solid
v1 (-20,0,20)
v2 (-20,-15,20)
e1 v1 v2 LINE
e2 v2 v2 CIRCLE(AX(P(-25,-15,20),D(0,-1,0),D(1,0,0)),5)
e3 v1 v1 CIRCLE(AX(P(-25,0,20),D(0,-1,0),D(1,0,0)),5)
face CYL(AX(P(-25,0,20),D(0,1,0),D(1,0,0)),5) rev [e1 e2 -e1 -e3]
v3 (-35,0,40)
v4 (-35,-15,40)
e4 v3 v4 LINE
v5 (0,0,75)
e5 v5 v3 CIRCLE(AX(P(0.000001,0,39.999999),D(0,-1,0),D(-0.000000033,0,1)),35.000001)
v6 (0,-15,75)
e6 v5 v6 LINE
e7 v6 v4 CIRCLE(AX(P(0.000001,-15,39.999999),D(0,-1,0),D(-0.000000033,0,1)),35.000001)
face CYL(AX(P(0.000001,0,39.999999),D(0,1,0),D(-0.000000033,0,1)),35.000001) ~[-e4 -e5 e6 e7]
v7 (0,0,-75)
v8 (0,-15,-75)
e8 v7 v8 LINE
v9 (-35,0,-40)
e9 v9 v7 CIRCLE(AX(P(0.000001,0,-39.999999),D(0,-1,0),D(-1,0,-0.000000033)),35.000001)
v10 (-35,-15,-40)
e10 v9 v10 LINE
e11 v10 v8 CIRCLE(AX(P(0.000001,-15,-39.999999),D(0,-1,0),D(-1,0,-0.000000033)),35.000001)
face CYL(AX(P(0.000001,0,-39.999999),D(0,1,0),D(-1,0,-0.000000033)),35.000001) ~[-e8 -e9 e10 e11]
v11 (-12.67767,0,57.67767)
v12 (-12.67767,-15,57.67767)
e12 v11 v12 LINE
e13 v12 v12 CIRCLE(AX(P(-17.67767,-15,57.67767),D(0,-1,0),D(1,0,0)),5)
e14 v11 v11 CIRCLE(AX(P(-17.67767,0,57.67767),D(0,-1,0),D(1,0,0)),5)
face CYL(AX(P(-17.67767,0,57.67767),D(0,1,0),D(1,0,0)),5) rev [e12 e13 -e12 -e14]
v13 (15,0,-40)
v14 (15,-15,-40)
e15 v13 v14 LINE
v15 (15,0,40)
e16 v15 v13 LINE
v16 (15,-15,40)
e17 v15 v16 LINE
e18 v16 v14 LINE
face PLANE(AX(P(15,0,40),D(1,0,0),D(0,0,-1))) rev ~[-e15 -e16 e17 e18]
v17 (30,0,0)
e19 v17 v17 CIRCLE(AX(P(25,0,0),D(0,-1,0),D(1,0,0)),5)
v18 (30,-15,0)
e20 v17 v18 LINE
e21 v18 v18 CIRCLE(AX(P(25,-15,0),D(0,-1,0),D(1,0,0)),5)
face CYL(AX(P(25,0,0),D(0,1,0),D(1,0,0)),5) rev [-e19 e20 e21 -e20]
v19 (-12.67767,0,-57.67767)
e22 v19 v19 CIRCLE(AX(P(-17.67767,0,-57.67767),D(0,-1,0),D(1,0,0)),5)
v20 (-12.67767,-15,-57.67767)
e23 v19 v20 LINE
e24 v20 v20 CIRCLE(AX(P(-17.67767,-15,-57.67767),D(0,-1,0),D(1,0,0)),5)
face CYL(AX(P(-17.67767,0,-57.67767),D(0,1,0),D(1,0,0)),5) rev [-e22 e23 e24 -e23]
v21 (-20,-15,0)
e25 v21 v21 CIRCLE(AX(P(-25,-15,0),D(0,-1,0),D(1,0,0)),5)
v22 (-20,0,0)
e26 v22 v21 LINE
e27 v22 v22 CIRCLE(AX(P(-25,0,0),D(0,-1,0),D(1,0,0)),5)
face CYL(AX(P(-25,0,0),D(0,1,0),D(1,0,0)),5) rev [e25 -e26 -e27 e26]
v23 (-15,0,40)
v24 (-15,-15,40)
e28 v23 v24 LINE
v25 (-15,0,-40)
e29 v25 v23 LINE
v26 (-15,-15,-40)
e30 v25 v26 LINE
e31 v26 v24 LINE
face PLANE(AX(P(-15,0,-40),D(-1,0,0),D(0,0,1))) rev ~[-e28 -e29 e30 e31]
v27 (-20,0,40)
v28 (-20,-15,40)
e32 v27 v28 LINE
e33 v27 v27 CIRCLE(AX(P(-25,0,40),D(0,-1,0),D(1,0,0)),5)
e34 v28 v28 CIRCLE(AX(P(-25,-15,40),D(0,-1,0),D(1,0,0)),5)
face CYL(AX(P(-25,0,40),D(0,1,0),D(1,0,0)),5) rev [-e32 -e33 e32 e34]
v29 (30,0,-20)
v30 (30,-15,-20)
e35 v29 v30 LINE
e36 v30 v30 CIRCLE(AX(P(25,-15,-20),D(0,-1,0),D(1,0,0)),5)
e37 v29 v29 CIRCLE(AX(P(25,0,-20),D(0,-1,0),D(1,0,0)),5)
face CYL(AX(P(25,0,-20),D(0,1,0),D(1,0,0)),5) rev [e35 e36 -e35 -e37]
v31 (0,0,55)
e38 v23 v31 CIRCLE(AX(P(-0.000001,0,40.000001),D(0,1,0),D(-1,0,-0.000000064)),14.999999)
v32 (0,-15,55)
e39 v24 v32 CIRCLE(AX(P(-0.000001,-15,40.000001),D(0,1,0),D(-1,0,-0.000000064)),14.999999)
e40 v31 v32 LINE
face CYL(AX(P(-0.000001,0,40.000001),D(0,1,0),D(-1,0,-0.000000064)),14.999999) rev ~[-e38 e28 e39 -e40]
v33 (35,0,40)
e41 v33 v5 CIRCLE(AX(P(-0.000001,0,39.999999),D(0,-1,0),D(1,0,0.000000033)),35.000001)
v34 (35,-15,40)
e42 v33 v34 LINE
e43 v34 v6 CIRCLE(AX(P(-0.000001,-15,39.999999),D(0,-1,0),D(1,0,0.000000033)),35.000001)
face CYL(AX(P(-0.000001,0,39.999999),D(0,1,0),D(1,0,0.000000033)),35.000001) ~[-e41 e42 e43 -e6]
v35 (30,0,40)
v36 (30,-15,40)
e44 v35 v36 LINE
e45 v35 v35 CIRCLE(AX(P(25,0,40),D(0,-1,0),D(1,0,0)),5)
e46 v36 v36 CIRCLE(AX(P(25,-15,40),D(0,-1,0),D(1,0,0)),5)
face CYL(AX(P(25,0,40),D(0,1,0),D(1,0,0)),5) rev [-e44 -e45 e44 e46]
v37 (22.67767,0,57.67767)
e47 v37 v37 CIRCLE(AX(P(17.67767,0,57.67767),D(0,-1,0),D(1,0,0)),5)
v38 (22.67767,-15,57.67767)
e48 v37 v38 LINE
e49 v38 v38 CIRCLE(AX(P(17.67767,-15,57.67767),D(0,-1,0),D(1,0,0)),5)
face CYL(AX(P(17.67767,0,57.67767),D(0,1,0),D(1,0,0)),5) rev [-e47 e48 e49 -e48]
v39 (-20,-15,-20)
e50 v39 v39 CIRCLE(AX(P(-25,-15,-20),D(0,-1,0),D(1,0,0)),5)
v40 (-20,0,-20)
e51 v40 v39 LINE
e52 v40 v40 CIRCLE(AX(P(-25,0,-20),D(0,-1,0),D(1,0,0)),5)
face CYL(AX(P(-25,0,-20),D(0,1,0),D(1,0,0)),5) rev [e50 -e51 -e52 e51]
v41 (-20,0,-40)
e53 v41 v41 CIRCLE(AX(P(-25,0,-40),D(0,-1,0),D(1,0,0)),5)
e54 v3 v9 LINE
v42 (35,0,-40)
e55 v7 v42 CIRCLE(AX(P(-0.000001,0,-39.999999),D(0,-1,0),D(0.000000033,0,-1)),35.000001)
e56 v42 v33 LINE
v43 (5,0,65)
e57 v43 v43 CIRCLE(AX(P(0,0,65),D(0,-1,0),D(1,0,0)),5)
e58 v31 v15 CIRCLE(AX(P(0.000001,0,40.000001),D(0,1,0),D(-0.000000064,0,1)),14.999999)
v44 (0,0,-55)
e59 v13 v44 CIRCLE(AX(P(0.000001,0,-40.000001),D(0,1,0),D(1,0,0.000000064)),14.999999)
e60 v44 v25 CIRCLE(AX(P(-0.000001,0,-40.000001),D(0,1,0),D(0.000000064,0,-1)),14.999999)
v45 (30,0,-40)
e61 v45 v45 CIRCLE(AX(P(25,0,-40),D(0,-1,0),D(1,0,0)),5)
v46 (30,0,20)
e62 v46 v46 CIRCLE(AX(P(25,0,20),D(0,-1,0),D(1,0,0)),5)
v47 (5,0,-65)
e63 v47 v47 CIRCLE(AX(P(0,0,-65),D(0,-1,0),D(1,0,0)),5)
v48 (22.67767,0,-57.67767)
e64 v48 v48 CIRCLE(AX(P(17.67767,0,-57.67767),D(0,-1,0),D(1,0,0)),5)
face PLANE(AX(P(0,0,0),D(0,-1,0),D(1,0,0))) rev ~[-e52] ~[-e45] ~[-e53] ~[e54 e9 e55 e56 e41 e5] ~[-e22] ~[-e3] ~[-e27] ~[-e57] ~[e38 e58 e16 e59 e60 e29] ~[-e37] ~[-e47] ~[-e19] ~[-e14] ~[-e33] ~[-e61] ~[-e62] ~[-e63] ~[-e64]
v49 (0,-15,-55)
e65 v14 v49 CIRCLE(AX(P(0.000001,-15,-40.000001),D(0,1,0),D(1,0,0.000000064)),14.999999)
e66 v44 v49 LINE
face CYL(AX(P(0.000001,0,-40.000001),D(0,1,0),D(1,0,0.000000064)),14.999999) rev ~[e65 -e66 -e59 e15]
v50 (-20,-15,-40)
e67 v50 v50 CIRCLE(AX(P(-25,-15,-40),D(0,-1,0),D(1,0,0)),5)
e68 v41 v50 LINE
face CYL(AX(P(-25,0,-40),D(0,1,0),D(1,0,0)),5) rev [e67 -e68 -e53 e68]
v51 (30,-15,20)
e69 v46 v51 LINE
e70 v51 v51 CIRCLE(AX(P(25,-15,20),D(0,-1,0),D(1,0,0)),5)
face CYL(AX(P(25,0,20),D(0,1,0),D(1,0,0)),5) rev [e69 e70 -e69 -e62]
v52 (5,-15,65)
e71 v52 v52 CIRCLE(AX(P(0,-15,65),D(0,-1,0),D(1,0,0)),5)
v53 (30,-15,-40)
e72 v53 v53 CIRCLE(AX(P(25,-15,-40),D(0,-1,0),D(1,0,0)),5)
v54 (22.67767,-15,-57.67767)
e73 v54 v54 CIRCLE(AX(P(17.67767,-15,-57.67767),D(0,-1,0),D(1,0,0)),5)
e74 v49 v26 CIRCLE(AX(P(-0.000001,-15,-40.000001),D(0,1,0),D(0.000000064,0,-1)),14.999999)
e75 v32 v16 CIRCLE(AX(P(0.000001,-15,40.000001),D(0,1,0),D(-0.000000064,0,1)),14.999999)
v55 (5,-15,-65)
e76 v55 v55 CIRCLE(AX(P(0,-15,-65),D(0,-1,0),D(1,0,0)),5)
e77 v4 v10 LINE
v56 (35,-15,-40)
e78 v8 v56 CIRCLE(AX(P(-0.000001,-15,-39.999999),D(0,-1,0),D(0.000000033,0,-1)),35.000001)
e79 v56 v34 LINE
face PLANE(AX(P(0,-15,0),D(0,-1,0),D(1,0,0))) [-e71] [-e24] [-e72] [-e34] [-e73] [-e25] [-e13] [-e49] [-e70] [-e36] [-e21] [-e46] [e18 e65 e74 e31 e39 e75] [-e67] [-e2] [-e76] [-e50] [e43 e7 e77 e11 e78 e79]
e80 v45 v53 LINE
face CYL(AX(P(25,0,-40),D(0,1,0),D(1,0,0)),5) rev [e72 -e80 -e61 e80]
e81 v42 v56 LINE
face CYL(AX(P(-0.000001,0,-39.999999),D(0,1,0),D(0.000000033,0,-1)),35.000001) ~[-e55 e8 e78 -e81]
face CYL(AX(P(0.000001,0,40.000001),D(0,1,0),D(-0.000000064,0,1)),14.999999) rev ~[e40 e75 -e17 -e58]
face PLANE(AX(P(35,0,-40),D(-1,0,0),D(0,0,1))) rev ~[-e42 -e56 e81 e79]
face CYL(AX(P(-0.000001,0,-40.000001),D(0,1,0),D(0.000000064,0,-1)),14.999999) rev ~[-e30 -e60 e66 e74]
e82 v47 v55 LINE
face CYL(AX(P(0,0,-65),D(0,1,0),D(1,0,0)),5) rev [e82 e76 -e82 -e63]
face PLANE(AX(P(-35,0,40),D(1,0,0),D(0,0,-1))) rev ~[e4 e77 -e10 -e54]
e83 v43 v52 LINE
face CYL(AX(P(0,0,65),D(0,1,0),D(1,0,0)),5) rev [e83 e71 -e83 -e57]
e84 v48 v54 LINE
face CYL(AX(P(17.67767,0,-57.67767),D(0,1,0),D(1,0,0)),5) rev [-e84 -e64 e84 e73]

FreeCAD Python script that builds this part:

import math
import FreeCAD as App
import Part
import Sketcher
from FreeCAD import Vector
Q = App.Units.Quantity

doc = App.newDocument("Part")
params = doc.addObject("Spreadsheet::Sheet", "Params")
for row, (alias, value) in enumerate([
    ("sketch1_diameter", "10 mm"),
    ("sketch1_radius", "35.000001 mm"),
    ("sketch1_radius2", "14.999999 mm"),
    ("sketch1_height", "80 mm"),
    ("pad1_length", "15 mm"),
], start=1):
    params.set(f"A{row}", alias)
    params.set(f"B{row}", "=" + value)
    params.setAlias(f"B{row}", alias)

body = doc.addObject("PartDesign::Body", "Body")

sketch1 = body.newObject("Sketcher::SketchObject", "Sketch")
sketch1.AttachmentSupport = (doc.getObject("XZ_Plane"), [""])
sketch1.MapMode = "FlatFace"
sketch1.addGeometry(Part.ArcOfCircle(Part.Circle(Vector(0.000001, 39.999999, 0), Vector(0, 0, 1), 35.000001), math.radians(90.000002), math.radians(179.999998)), False)
sketch1.addGeometry(Part.LineSegment(Vector(-35, 40, 0), Vector(-35, -40, 0)), False)
sketch1.addGeometry(Part.ArcOfCircle(Part.Circle(Vector(0.000001, -39.999999, 0), Vector(0, 0, 1), 35.000001), math.radians(-179.999998), math.radians(-90.000002)), False)
sketch1.addGeometry(Part.ArcOfCircle(Part.Circle(Vector(-0.000001, -39.999999, 0), Vector(0, 0, 1), 35.000001), math.radians(-89.999998), math.radians(-0.000002)), False)
sketch1.addGeometry(Part.LineSegment(Vector(35, -40, 0), Vector(35, 40, 0)), False)
sketch1.addGeometry(Part.ArcOfCircle(Part.Circle(Vector(-0.000001, 39.999999, 0), Vector(0, 0, 1), 35.000001), math.radians(0.000002), math.radians(89.999998)), False)
sketch1.addGeometry(Part.Circle(Vector(-17.67767, -57.67767, 0), Vector(0, 0, 1), 5), False)
sketch1.addGeometry(Part.Circle(Vector(-25, -40, 0), Vector(0, 0, 1), 5), False)
sketch1.addGeometry(Part.Circle(Vector(-25, -20, 0), Vector(0, 0, 1), 5), False)
sketch1.addGeometry(Part.Circle(Vector(0, -65, 0), Vector(0, 0, 1), 5), False)
sketch1.addGeometry(Part.Circle(Vector(17.67767, -57.67767, 0), Vector(0, 0, 1), 5), False)
sketch1.addGeometry(Part.Circle(Vector(25, -40, 0), Vector(0, 0, 1), 5), False)
sketch1.addGeometry(Part.Circle(Vector(25, -20, 0), Vector(0, 0, 1), 5), False)
sketch1.addGeometry(Part.Circle(Vector(-25, 0, 0), Vector(0, 0, 1), 5), False)
sketch1.addGeometry(Part.Circle(Vector(-25, 20, 0), Vector(0, 0, 1), 5), False)
sketch1.addGeometry(Part.Circle(Vector(-25, 40, 0), Vector(0, 0, 1), 5), False)
sketch1.addGeometry(Part.Circle(Vector(-17.67767, 57.67767, 0), Vector(0, 0, 1), 5), False)
sketch1.addGeometry(Part.LineSegment(Vector(-15, -40, 0), Vector(-15, 40, 0)), False)
sketch1.addGeometry(Part.ArcOfCircle(Part.Circle(Vector(-0.000001, 40.000001, 0), Vector(0, 0, 1), 14.999999), math.radians(89.999996), math.radians(180.000004)), False)
sketch1.addGeometry(Part.ArcOfCircle(Part.Circle(Vector(0.000001, 40.000001, 0), Vector(0, 0, 1), 14.999999), math.radians(-0.000004), math.radians(90.000004)), False)
sketch1.addGeometry(Part.LineSegment(Vector(15, 40, 0), Vector(15, -40, 0)), False)
sketch1.addGeometry(Part.ArcOfCircle(Part.Circle(Vector(0.000001, -40.000001, 0), Vector(0, 0, 1), 14.999999), math.radians(-90.000004), math.radians(0.000004)), False)
sketch1.addGeometry(Part.ArcOfCircle(Part.Circle(Vector(-0.000001, -40.000001, 0), Vector(0, 0, 1), 14.999999), math.radians(179.999996), math.radians(270.000004)), False)
sketch1.addGeometry(Part.Circle(Vector(25, 0, 0), Vector(0, 0, 1), 5), False)
sketch1.addGeometry(Part.Circle(Vector(25, 20, 0), Vector(0, 0, 1), 5), False)
sketch1.addGeometry(Part.Circle(Vector(0, 65, 0), Vector(0, 0, 1), 5), False)
sketch1.addGeometry(Part.Circle(Vector(25, 40, 0), Vector(0, 0, 1), 5), False)
sketch1.addGeometry(Part.Circle(Vector(17.67767, 57.67767, 0), Vector(0, 0, 1), 5), False)
sketch1.addConstraint(Sketcher.Constraint("Tangent", 0, 2, 1, 1))
sketch1.addConstraint(Sketcher.Constraint("Tangent", 1, 2, 2, 1))
sketch1.addConstraint(Sketcher.Constraint("Tangent", 2, 2, 3, 1))
sketch1.addConstraint(Sketcher.Constraint("Tangent", 3, 2, 4, 1))
sketch1.addConstraint(Sketcher.Constraint("Tangent", 4, 2, 5, 1))
sketch1.addConstraint(Sketcher.Constraint("Tangent", 5, 2, 0, 1))
sketch1.addConstraint(Sketcher.Constraint("Tangent", 17, 2, 18, 2))
sketch1.addConstraint(Sketcher.Constraint("Tangent", 18, 1, 19, 2))
sketch1.addConstraint(Sketcher.Constraint("Tangent", 19, 1, 20, 1))
sketch1.addConstraint(Sketcher.Constraint("Tangent", 20, 2, 21, 2))
sketch1.addConstraint(Sketcher.Constraint("Tangent", 21, 1, 22, 2))
sketch1.addConstraint(Sketcher.Constraint("Tangent", 22, 1, 17, 1))
sketch1.addConstraint(Sketcher.Constraint("Vertical", 1))
sketch1.addConstraint(Sketcher.Constraint("Vertical", 4))
sketch1.addConstraint(Sketcher.Constraint("Vertical", 17))
sketch1.addConstraint(Sketcher.Constraint("Vertical", 20))
sketch1.addConstraint(Sketcher.Constraint("Coincident", 18, 3, 0, 3))
sketch1.addConstraint(Sketcher.Constraint("Coincident", 21, 3, 2, 3))
sketch1.addConstraint(Sketcher.Constraint("Equal", 0, 2))
sketch1.addConstraint(Sketcher.Constraint("Equal", 2, 3))
sketch1.addConstraint(Sketcher.Constraint("Equal", 6, 7))
sketch1.addConstraint(Sketcher.Constraint("Equal", 7, 8))
sketch1.addConstraint(Sketcher.Constraint("Equal", 8, 9))
sketch1.addConstraint(Sketcher.Constraint("Equal", 9, 10))
sketch1.addConstraint(Sketcher.Constraint("Equal", 10, 11))
sketch1.addConstraint(Sketcher.Constraint("Equal", 11, 12))
sketch1.addConstraint(Sketcher.Constraint("Equal", 12, 13))
sketch1.addConstraint(Sketcher.Constraint("Equal", 13, 14))
sketch1.addConstraint(Sketcher.Constraint("Equal", 14, 15))
sketch1.addConstraint(Sketcher.Constraint("Equal", 15, 16))
sketch1.addConstraint(Sketcher.Constraint("Equal", 18, 19))
sketch1.addConstraint(Sketcher.Constraint("Equal", 16, 23))
sketch1.addConstraint(Sketcher.Constraint("Equal", 23, 24))
sketch1.addConstraint(Sketcher.Constraint("Equal", 24, 25))
sketch1.addConstraint(Sketcher.Constraint("Equal", 25, 26))
sketch1.addConstraint(Sketcher.Constraint("Equal", 26, 27))
sketch1.addConstraint(Sketcher.Constraint("Symmetric", 0, 3, 2, 3, -1, 1))
sketch1.addConstraint(Sketcher.Constraint("Symmetric", 12, 3, 14, 3, -1, 1))
sketch1.addConstraint(Sketcher.Constraint("Symmetric", 11, 3, 15, 3, -1, 1))
sketch1.addConstraint(Sketcher.Constraint("Symmetric", 10, 3, 16, 3, -1, 1))
sketch1.addConstraint(Sketcher.Constraint("Symmetric", 13, 3, 23, 3, -1, 1))
sketch1.addConstraint(Sketcher.Constraint("Symmetric", 8, 3, 24, 3, -1, 1))
sketch1.addConstraint(Sketcher.Constraint("Symmetric", 9, 3, 25, 3, -1, 1))
sketch1.addConstraint(Sketcher.Constraint("Symmetric", 7, 3, 26, 3, -1, 1))
sketch1.addConstraint(Sketcher.Constraint("Symmetric", 6, 3, 27, 3, -1, 1))
sketch1.addConstraint(Sketcher.Constraint("Symmetric", 6, 3, 10, 3, -2))
sketch1.addConstraint(Sketcher.Constraint("Symmetric", 7, 3, 11, 3, -2))
sketch1.addConstraint(Sketcher.Constraint("Symmetric", 8, 3, 12, 3, -2))
sketch1.addConstraint(Sketcher.Constraint("PointOnObject", 9, 3, -2))
sketch1.addConstraint(Sketcher.Constraint("PointOnObject", 13, 3, -1))
sketch1.addConstraint(Sketcher.Constraint("PointOnObject", 2, 2, -2))
sketch1.addConstraint(Sketcher.Constraint("PointOnObject", 5, 2, -2))
sketch1.addConstraint(Sketcher.Constraint("PointOnObject", 18, 1, -2))
sketch1.addConstraint(Sketcher.Constraint("PointOnObject", 21, 1, -2))
sketch1.addConstraint(Sketcher.Constraint("Horizontal", 3, 3, 7, 3))
sketch1.addConstraint(Sketcher.Constraint("Vertical", 7, 3, 8, 3))
sketch1.addConstraint(Sketcher.Constraint("Vertical", 8, 3, 13, 3))
sketch1.addConstraint(Sketcher.Constraint("Diameter", 6, Q("10 mm")))
sketch1.addConstraint(Sketcher.Constraint("Radius", 0, Q("35.000001 mm")))
sketch1.addConstraint(Sketcher.Constraint("Radius", 18, Q("14.999999 mm")))
sketch1.addConstraint(Sketcher.Constraint("DistanceY", 1, 2, 1, 1, Q("80 mm")))
sketch1.addConstraint(Sketcher.Constraint("DistanceX", 7, 3, -1, 1, Q("25 mm")))
sketch1.addConstraint(Sketcher.Constraint("DistanceY", 8, 3, -1, 1, Q("20 mm")))
sketch1.addConstraint(Sketcher.Constraint("DistanceY", 9, 3, -1, 1, Q("65 mm")))
sketch1.addConstraint(Sketcher.Constraint("DistanceX", 6, 3, -1, 1, Q("17.67767 mm")))
sketch1.addConstraint(Sketcher.Constraint("DistanceY", 6, 3, -1, 1, Q("57.67767 mm")))
sketch1.setExpression("Constraints[57]", "Params.sketch1_diameter")
sketch1.setExpression("Constraints[58]", "Params.sketch1_radius")
sketch1.setExpression("Constraints[59]", "Params.sketch1_radius2")
sketch1.setExpression("Constraints[60]", "Params.sketch1_height")
pad1 = body.newObject("PartDesign::Pad", "Pad")
pad1.Profile = sketch1
pad1.setExpression("Length", "Params.pad1_length")

doc.recompute()
